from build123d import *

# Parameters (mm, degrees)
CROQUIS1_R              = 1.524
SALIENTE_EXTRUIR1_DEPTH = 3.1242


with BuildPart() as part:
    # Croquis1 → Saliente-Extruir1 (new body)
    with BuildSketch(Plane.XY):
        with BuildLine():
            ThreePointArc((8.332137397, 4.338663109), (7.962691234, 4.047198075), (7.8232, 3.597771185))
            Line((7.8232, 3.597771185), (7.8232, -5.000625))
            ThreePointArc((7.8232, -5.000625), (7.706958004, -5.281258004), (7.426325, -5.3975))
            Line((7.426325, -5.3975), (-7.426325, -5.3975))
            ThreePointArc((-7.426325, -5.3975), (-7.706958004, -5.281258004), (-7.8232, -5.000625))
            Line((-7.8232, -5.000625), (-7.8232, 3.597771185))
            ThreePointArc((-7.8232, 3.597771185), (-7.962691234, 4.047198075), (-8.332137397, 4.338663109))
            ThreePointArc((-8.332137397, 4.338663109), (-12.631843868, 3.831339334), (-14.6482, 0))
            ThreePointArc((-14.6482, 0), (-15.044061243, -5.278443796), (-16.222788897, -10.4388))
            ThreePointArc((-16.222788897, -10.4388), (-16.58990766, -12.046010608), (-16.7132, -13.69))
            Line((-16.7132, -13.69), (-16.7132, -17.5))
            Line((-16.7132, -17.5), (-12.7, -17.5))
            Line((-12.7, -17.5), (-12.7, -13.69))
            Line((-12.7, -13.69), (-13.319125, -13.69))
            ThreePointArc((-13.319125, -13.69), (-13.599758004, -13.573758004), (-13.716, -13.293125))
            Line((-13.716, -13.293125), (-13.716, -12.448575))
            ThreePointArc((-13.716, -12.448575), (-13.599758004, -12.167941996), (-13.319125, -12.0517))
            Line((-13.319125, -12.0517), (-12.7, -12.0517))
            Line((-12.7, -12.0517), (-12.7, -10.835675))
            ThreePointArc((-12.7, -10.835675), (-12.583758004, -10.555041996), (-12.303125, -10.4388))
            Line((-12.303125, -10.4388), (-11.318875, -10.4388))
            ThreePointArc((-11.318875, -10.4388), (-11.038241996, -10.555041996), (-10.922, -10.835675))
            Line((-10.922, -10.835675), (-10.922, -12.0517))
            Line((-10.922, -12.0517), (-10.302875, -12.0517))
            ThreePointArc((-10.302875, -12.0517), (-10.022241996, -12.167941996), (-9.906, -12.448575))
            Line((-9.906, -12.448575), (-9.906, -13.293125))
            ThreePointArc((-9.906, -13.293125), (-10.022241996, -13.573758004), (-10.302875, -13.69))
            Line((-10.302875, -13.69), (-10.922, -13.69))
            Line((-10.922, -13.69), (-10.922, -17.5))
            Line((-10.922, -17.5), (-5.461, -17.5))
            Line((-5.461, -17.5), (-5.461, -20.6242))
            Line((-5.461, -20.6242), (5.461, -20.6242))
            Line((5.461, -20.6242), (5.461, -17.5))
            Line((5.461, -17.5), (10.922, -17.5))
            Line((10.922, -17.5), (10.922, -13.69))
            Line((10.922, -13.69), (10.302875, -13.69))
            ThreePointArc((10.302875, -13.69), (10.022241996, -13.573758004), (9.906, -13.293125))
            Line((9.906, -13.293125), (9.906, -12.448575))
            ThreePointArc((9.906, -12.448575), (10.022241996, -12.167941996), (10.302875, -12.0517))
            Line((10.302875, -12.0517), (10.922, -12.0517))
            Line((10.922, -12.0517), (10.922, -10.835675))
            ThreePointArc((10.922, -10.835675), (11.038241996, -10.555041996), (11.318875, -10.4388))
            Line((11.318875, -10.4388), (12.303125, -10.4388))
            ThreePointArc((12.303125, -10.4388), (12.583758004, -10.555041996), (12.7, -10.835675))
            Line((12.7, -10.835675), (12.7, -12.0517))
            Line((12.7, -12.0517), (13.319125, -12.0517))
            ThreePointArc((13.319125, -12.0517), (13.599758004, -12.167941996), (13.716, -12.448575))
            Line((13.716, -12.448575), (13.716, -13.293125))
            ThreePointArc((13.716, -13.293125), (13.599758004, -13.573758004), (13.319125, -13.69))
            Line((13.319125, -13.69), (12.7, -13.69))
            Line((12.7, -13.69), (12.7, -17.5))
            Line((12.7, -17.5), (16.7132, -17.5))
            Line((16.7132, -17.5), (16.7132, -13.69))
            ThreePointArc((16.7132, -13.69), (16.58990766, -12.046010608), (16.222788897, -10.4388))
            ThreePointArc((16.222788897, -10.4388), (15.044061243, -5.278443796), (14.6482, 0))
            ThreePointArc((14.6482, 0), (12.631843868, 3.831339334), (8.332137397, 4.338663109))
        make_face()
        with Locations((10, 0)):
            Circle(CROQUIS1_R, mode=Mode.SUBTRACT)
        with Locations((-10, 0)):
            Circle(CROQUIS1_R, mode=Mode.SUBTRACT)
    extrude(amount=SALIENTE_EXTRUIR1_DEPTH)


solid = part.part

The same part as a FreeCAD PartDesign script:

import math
import FreeCAD as App
import Part
import Sketcher

V = App.Vector
Q = App.Units.Quantity

doc = App.newDocument("Part")
body = doc.addObject("PartDesign::Body", "Body")

# Sketch on XY plane
sketch1 = doc.addObject("Sketcher::SketchObject", "Sketch")
body.addObject(sketch1)
sketch1.AttachmentSupport = (doc.XY_Plane, [""])
sketch1.MapMode = "FlatFace"
sketch1.addGeometry([
    Part.ArcOfCircle(Part.Circle(V(8.61695, 3.597771, 0), V(0, 0, 1), 0.79375), math.radians(111.027686), math.radians(180)),  # 0
    Part.LineSegment(V(7.8232, 3.597771, 0), V(7.8232, -5.000625, 0)),  # 1
    Part.ArcOfCircle(Part.Circle(V(7.426325, -5.000625, 0), V(0, 0, 1), 0.396875), math.radians(-90), math.radians(0)),  # 2
    Part.LineSegment(V(7.426325, -5.3975, 0), V(-7.426325, -5.3975, 0)),  # 3
    Part.ArcOfCircle(Part.Circle(V(-7.426325, -5.000625, 0), V(0, 0, 1), 0.396875), math.radians(180), math.radians(270)),  # 4
    Part.LineSegment(V(-7.8232, -5.000625, 0), V(-7.8232, 3.597771, 0)),  # 5
    Part.ArcOfCircle(Part.Circle(V(-8.61695, 3.597771, 0), V(0, 0, 1), 0.79375), math.radians(0), math.radians(68.972314)),  # 6
    Part.ArcOfCircle(Part.Circle(V(-10, 0, 0), V(0, 0, 1), 4.6482), math.radians(68.972314), math.radians(180)),  # 7
    Part.ArcOfCircle(Part.Circle(V(-50.037715, 0, 0), V(0, 0, 1), 35.389515), math.radians(-17.155662), math.radians(0)),  # 8
    Part.ArcOfCircle(Part.Circle(V(-5.691014, -13.69, 0), V(0, 0, 1), 11.022186), math.radians(162.844338), math.radians(180)),  # 9
    Part.LineSegment(V(-16.7132, -13.69, 0), V(-16.7132, -17.5, 0)),  # 10
    Part.LineSegment(V(-16.7132, -17.5, 0), V(-12.7, -17.5, 0)),  # 11
    Part.LineSegment(V(-12.7, -17.5, 0), V(-12.7, -13.69, 0)),  # 12
    Part.LineSegment(V(-12.7, -13.69, 0), V(-13.319125, -13.69, 0)),  # 13
    Part.ArcOfCircle(Part.Circle(V(-13.319125, -13.293125, 0), V(0, 0, 1), 0.396875), math.radians(180), math.radians(270)),  # 14
    Part.LineSegment(V(-13.716, -13.293125, 0), V(-13.716, -12.448575, 0)),  # 15
    Part.ArcOfCircle(Part.Circle(V(-13.319125, -12.448575, 0), V(0, 0, 1), 0.396875), math.radians(90), math.radians(180)),  # 16
    Part.LineSegment(V(-13.319125, -12.0517, 0), V(-12.7, -12.0517, 0)),  # 17
    Part.LineSegment(V(-12.7, -12.0517, 0), V(-12.7, -10.835675, 0)),  # 18
    Part.ArcOfCircle(Part.Circle(V(-12.303125, -10.835675, 0), V(0, 0, 1), 0.396875), math.radians(90), math.radians(180)),  # 19
    Part.LineSegment(V(-12.303125, -10.4388, 0), V(-11.318875, -10.4388, 0)),  # 20
    Part.ArcOfCircle(Part.Circle(V(-11.318875, -10.835675, 0), V(0, 0, 1), 0.396875), math.radians(0), math.radians(90)),  # 21
    Part.LineSegment(V(-10.922, -10.835675, 0), V(-10.922, -12.0517, 0)),  # 22
    Part.LineSegment(V(-10.922, -12.0517, 0), V(-10.302875, -12.0517, 0)),  # 23
    Part.ArcOfCircle(Part.Circle(V(-10.302875, -12.448575, 0), V(0, 0, 1), 0.396875), math.radians(0), math.radians(90)),  # 24
    Part.LineSegment(V(-9.906, -12.448575, 0), V(-9.906, -13.293125, 0)),  # 25
    Part.ArcOfCircle(Part.Circle(V(-10.302875, -13.293125, 0), V(0, 0, 1), 0.396875), math.radians(-90), math.radians(0)),  # 26
    Part.LineSegment(V(-10.302875, -13.69, 0), V(-10.922, -13.69, 0)),  # 27
    Part.LineSegment(V(-10.922, -13.69, 0), V(-10.922, -17.5, 0)),  # 28
    Part.LineSegment(V(-10.922, -17.5, 0), V(-5.461, -17.5, 0)),  # 29
    Part.LineSegment(V(-5.461, -17.5, 0), V(-5.461, -20.6242, 0)),  # 30
    Part.LineSegment(V(-5.461, -20.6242, 0), V(5.461, -20.6242, 0)),  # 31
    Part.LineSegment(V(5.461, -20.6242, 0), V(5.461, -17.5, 0)),  # 32
    Part.LineSegment(V(5.461, -17.5, 0), V(10.922, -17.5, 0)),  # 33
    Part.LineSegment(V(10.922, -17.5, 0), V(10.922, -13.69, 0)),  # 34
    Part.LineSegment(V(10.922, -13.69, 0), V(10.302875, -13.69, 0)),  # 35
    Part.ArcOfCircle(Part.Circle(V(10.302875, -13.293125, 0), V(0, 0, 1), 0.396875), math.radians(180), math.radians(270)),  # 36
    Part.LineSegment(V(9.906, -13.293125, 0), V(9.906, -12.448575, 0)),  # 37
    Part.ArcOfCircle(Part.Circle(V(10.302875, -12.448575, 0), V(0, 0, 1), 0.396875), math.radians(90), math.radians(180)),  # 38
    Part.LineSegment(V(10.302875, -12.0517, 0), V(10.922, -12.0517, 0)),  # 39
    Part.LineSegment(V(10.922, -12.0517, 0), V(10.922, -10.835675, 0)),  # 40
    Part.ArcOfCircle(Part.Circle(V(11.318875, -10.835675, 0), V(0, 0, 1), 0.396875), math.radians(90), math.radians(180)),  # 41
    Part.LineSegment(V(11.318875, -10.4388, 0), V(12.303125, -10.4388, 0)),  # 42
    Part.ArcOfCircle(Part.Circle(V(12.303125, -10.835675, 0), V(0, 0, 1), 0.396875), math.radians(0), math.radians(90)),  # 43
    Part.LineSegment(V(12.7, -10.835675, 0), V(12.7, -12.0517, 0)),  # 44
    Part.LineSegment(V(12.7, -12.0517, 0), V(13.319125, -12.0517, 0)),  # 45
    Part.ArcOfCircle(Part.Circle(V(13.319125, -12.448575, 0), V(0, 0, 1), 0.396875), math.radians(0), math.radians(90)),  # 46
    Part.LineSegment(V(13.716, -12.448575, 0), V(13.716, -13.293125, 0)),  # 47
    Part.ArcOfCircle(Part.Circle(V(13.319125, -13.293125, 0), V(0, 0, 1), 0.396875), math.radians(-90), math.radians(0)),  # 48
    Part.LineSegment(V(13.319125, -13.69, 0), V(12.7, -13.69, 0)),  # 49
    Part.LineSegment(V(12.7, -13.69, 0), V(12.7, -17.5, 0)),  # 50
    Part.LineSegment(V(12.7, -17.5, 0), V(16.7132, -17.5, 0)),  # 51
    Part.LineSegment(V(16.7132, -17.5, 0), V(16.7132, -13.69, 0)),  # 52
    Part.ArcOfCircle(Part.Circle(V(5.691014, -13.69, 0), V(0, 0, 1), 11.022186), math.radians(0), math.radians(17.155662)),  # 53
    Part.ArcOfCircle(Part.Circle(V(50.037715, 0, 0), V(0, 0, 1), 35.389515), math.radians(180), math.radians(197.155662)),  # 54
    Part.ArcOfCircle(Part.Circle(V(10, 0, 0), V(0, 0, 1), 4.6482), math.radians(0), math.radians(111.027686)),  # 55
    Part.Circle(V(-10, 0, 0), V(0, 0, 1), 1.524),  # 56
    Part.Circle(V(10, 0, 0), V(0, 0, 1), 1.524),  # 57
], False)
sketch1.addConstraint([
    Sketcher.Constraint("Tangent", 0, 2, 1, 1),
    Sketcher.Constraint("Tangent", 1, 2, 2, 2),
    Sketcher.Constraint("Tangent", 2, 1, 3, 1),
    Sketcher.Constraint("Tangent", 3, 2, 4, 2),
    Sketcher.Constraint("Tangent", 4, 1, 5, 1),
    Sketcher.Constraint("Tangent", 5, 2, 6, 1),
    Sketcher.Constraint("Tangent", 6, 2, 7, 1),
    Sketcher.Constraint("Tangent", 7, 2, 8, 2),
    Sketcher.Constraint("Tangent", 8, 1, 9, 1),
    Sketcher.Constraint("Tangent", 9, 2, 10, 1),
    Sketcher.Constraint("Coincident", 10, 2, 11, 1),
    Sketcher.Constraint("Coincident", 11, 2, 12, 1),
    Sketcher.Constraint("Coincident", 12, 2, 13, 1),
    Sketcher.Constraint("Tangent", 13, 2, 14, 2),
    Sketcher.Constraint("Tangent", 14, 1, 15, 1),
    Sketcher.Constraint("Tangent", 15, 2, 16, 2),
    Sketcher.Constraint("Tangent", 16, 1, 17, 1),
    Sketcher.Constraint("Coincident", 17, 2, 18, 1),
    Sketcher.Constraint("Tangent", 18, 2, 19, 2),
    Sketcher.Constraint("Tangent", 19, 1, 20, 1),
    Sketcher.Constraint("Tangent", 20, 2, 21, 2),
    Sketcher.Constraint("Tangent", 21, 1, 22, 1),
    Sketcher.Constraint("Coincident", 22, 2, 23, 1),
    Sketcher.Constraint("Tangent", 23, 2, 24, 2),
    Sketcher.Constraint("Tangent", 24, 1, 25, 1),
    Sketcher.Constraint("Tangent", 25, 2, 26, 2),
    Sketcher.Constraint("Tangent", 26, 1, 27, 1),
    Sketcher.Constraint("Coincident", 27, 2, 28, 1),
    Sketcher.Constraint("Coincident", 28, 2, 29, 1),
    Sketcher.Constraint("Coincident", 29, 2, 30, 1),
    Sketcher.Constraint("Coincident", 30, 2, 31, 1),
    Sketcher.Constraint("Coincident", 31, 2, 32, 1),
    Sketcher.Constraint("Coincident", 32, 2, 33, 1),
    Sketcher.Constraint("Coincident", 33, 2, 34, 1),
    Sketcher.Constraint("Coincident", 34, 2, 35, 1),
    Sketcher.Constraint("Tangent", 35, 2, 36, 2),
    Sketcher.Constraint("Tangent", 36, 1, 37, 1),
    Sketcher.Constraint("Tangent", 37, 2, 38, 2),
    Sketcher.Constraint("Tangent", 38, 1, 39, 1),
    Sketcher.Constraint("Coincident", 39, 2, 40, 1),
    Sketcher.Constraint("Tangent", 40, 2, 41, 2),
    Sketcher.Constraint("Tangent", 41, 1, 42, 1),
    Sketcher.Constraint("Tangent", 42, 2, 43, 2),
    Sketcher.Constraint("Tangent", 43, 1, 44, 1),
    Sketcher.Constraint("Coincident", 44, 2, 45, 1),
    Sketcher.Constraint("Tangent", 45, 2, 46, 2),
    Sketcher.Constraint("Tangent", 46, 1, 47, 1),
    Sketcher.Constraint("Tangent", 47, 2, 48, 2),
    Sketcher.Constraint("Tangent", 48, 1, 49, 1),
    Sketcher.Constraint("Coincident", 49, 2, 50, 1),
    Sketcher.Constraint("Coincident", 50, 2, 51, 1),
    Sketcher.Constraint("Coincident", 51, 2, 52, 1),
    Sketcher.Constraint("Tangent", 52, 2, 53, 1),
    Sketcher.Constraint("Tangent", 53, 2, 54, 2),
    Sketcher.Constraint("Tangent", 54, 1, 55, 1),
    Sketcher.Constraint("Tangent", 55, 2, 0, 1),
    Sketcher.Constraint("Vertical", 1),
    Sketcher.Constraint("Horizontal", 3),
    Sketcher.Constraint("Vertical", 5),
    Sketcher.Constraint("Vertical", 10),
    Sketcher.Constraint("Horizontal", 11),
    Sketcher.Constraint("Vertical", 12),
    Sketcher.Constraint("Horizontal", 13),
    Sketcher.Constraint("Vertical", 15),
    Sketcher.Constraint("Horizontal", 17),
    Sketcher.Constraint("Vertical", 18),
    Sketcher.Constraint("Horizontal", 20),
    Sketcher.Constraint("Vertical", 22),
    Sketcher.Constraint("Horizontal", 23),
    Sketcher.Constraint("Vertical", 25),
    Sketcher.Constraint("Horizontal", 27),
    Sketcher.Constraint("Vertical", 28),
    Sketcher.Constraint("Horizontal", 29),
    Sketcher.Constraint("Vertical", 30),
    Sketcher.Constraint("Horizontal", 31),
    Sketcher.Constraint("Vertical", 32),
    Sketcher.Constraint("Horizontal", 33),
    Sketcher.Constraint("Vertical", 34),
    Sketcher.Constraint("Horizontal", 35),
    Sketcher.Constraint("Vertical", 37),
    Sketcher.Constraint("Horizontal", 39),
    Sketcher.Constraint("Vertical", 40),
    Sketcher.Constraint("Horizontal", 42),
    Sketcher.Constraint("Vertical", 44),
    Sketcher.Constraint("Horizontal", 45),
    Sketcher.Constraint("Vertical", 47),
    Sketcher.Constraint("Horizontal", 49),
    Sketcher.Constraint("Vertical", 50),
    Sketcher.Constraint("Horizontal", 51),
    Sketcher.Constraint("Vertical", 52),
    Sketcher.Constraint("Coincident", 56, 3, 7, 3),
    Sketcher.Constraint("Coincident", 57, 3, 55, 3),
    Sketcher.Constraint("Equal", 2, 4),
    Sketcher.Constraint("Equal", 0, 6),
    Sketcher.Constraint("Equal", 4, 14),
    Sketcher.Constraint("Equal", 14, 16),
    Sketcher.Constraint("Equal", 16, 19),
    Sketcher.Constraint("Equal", 19, 21),
    Sketcher.Constraint("Equal", 21, 24),
    Sketcher.Constraint("Equal", 24, 26),
    Sketcher.Constraint("Equal", 26, 36),
    Sketcher.Constraint("Equal", 36, 38),
    Sketcher.Constraint("Equal", 38, 41),
    Sketcher.Constraint("Equal", 41, 43),
    Sketcher.Constraint("Equal", 43, 46),
    Sketcher.Constraint("Equal", 46, 48),
    Sketcher.Constraint("Equal", 9, 53),
    Sketcher.Constraint("Equal", 8, 54),
    Sketcher.Constraint("Equal", 7, 55),
    Sketcher.Constraint("Equal", 56, 57),
    Sketcher.Constraint("Symmetric", 8, 3, 54, 3, -1, 1),
    Sketcher.Constraint("Symmetric", 0, 3, 6, 3, -2),
    Sketcher.Constraint("Symmetric", 26, 3, 36, 3, -2),
    Sketcher.Constraint("Symmetric", 21, 3, 41, 3, -2),
    Sketcher.Constraint("Symmetric", 16, 3, 46, 3, -2),
    Sketcher.Constraint("Symmetric", 9, 3, 53, 3, -2),
    Sketcher.Constraint("Symmetric", 29, 2, 32, 2, -2),
    Sketcher.Constraint("Symmetric", 12, 2, 49, 2, -2),
    Sketcher.Constraint("PointOnObject", 7, 3, -1),
    Sketcher.Constraint("Horizontal", 16, 3, 24, 3),
    Sketcher.Constraint("Horizontal", 14, 3, 26, 3),
    Sketcher.Constraint("Horizontal", 24, 3, 38, 3),
    Sketcher.Constraint("Horizontal", 9, 2, 12, 2),
    Sketcher.Constraint("Horizontal", 8, 1, 19, 1),
    Sketcher.Constraint("Horizontal", 11, 2, 28, 2),
    Sketcher.Constraint("Horizontal", 33, 2, 50, 2),
    Sketcher.Constraint("Vertical", 12, 2, 17, 2),
    Sketcher.Constraint("Vertical", 22, 2, 27, 2),
    Sketcher.Constraint("Vertical", 34, 2, 39, 2),
    Sketcher.Constraint("Vertical", 44, 2, 49, 2),
    Sketcher.Constraint("Equal", 17, 23),
    Sketcher.Constraint("Diameter", 56, Q("0.12 in")),
    Sketcher.Constraint("Radius", 0, Q("0.03125 in")),
    Sketcher.Constraint("Radius", 2, Q("0.015625 in")),
    Sketcher.Constraint("Radius", 7, Q("0.183 in")),
    Sketcher.Constraint("DistanceX", 31, 1, 31, 2, Q("0.43 in")),
    Sketcher.Constraint("DistanceY", 10, 2, 10, 1, Q("0.15 in")),
    Sketcher.Constraint("DistanceX", 11, 2, -1, 1, Q("0.5 in")),
    Sketcher.Constraint("DistanceX", 11, 1, 11, 2, Q("0.158 in")),
    Sketcher.Constraint("DistanceX", 29, 1, 29, 2, Q("0.215 in")),
    Sketcher.Constraint("DistanceY", 30, 2, 30, 1, Q("0.123 in")),
    Sketcher.Constraint("DistanceX", 14, 1, -1, 1, Q("0.54 in")),
    Sketcher.Constraint("DistanceX", -1, 1, 0, 2, Q("0.308 in")),
    Sketcher.Constraint("DistanceY", 2, 1, -1, 1, Q("0.2125 in")),
    Sketcher.Constraint("Radius", 8, 35.389515),
    Sketcher.Constraint("Radius", 9, 11.022186),
    Sketcher.Constraint("DistanceY", 15, 1, 15, 2, 0.84455),
    Sketcher.Constraint("DistanceX", 7, 3, -1, 1, 10.0),
])
pad1 = doc.addObject("PartDesign::Pad", "Pad")
body.addObject(pad1)
pad1.Profile = sketch1
pad1.Length = Q("0.123 in")

doc.recompute()
